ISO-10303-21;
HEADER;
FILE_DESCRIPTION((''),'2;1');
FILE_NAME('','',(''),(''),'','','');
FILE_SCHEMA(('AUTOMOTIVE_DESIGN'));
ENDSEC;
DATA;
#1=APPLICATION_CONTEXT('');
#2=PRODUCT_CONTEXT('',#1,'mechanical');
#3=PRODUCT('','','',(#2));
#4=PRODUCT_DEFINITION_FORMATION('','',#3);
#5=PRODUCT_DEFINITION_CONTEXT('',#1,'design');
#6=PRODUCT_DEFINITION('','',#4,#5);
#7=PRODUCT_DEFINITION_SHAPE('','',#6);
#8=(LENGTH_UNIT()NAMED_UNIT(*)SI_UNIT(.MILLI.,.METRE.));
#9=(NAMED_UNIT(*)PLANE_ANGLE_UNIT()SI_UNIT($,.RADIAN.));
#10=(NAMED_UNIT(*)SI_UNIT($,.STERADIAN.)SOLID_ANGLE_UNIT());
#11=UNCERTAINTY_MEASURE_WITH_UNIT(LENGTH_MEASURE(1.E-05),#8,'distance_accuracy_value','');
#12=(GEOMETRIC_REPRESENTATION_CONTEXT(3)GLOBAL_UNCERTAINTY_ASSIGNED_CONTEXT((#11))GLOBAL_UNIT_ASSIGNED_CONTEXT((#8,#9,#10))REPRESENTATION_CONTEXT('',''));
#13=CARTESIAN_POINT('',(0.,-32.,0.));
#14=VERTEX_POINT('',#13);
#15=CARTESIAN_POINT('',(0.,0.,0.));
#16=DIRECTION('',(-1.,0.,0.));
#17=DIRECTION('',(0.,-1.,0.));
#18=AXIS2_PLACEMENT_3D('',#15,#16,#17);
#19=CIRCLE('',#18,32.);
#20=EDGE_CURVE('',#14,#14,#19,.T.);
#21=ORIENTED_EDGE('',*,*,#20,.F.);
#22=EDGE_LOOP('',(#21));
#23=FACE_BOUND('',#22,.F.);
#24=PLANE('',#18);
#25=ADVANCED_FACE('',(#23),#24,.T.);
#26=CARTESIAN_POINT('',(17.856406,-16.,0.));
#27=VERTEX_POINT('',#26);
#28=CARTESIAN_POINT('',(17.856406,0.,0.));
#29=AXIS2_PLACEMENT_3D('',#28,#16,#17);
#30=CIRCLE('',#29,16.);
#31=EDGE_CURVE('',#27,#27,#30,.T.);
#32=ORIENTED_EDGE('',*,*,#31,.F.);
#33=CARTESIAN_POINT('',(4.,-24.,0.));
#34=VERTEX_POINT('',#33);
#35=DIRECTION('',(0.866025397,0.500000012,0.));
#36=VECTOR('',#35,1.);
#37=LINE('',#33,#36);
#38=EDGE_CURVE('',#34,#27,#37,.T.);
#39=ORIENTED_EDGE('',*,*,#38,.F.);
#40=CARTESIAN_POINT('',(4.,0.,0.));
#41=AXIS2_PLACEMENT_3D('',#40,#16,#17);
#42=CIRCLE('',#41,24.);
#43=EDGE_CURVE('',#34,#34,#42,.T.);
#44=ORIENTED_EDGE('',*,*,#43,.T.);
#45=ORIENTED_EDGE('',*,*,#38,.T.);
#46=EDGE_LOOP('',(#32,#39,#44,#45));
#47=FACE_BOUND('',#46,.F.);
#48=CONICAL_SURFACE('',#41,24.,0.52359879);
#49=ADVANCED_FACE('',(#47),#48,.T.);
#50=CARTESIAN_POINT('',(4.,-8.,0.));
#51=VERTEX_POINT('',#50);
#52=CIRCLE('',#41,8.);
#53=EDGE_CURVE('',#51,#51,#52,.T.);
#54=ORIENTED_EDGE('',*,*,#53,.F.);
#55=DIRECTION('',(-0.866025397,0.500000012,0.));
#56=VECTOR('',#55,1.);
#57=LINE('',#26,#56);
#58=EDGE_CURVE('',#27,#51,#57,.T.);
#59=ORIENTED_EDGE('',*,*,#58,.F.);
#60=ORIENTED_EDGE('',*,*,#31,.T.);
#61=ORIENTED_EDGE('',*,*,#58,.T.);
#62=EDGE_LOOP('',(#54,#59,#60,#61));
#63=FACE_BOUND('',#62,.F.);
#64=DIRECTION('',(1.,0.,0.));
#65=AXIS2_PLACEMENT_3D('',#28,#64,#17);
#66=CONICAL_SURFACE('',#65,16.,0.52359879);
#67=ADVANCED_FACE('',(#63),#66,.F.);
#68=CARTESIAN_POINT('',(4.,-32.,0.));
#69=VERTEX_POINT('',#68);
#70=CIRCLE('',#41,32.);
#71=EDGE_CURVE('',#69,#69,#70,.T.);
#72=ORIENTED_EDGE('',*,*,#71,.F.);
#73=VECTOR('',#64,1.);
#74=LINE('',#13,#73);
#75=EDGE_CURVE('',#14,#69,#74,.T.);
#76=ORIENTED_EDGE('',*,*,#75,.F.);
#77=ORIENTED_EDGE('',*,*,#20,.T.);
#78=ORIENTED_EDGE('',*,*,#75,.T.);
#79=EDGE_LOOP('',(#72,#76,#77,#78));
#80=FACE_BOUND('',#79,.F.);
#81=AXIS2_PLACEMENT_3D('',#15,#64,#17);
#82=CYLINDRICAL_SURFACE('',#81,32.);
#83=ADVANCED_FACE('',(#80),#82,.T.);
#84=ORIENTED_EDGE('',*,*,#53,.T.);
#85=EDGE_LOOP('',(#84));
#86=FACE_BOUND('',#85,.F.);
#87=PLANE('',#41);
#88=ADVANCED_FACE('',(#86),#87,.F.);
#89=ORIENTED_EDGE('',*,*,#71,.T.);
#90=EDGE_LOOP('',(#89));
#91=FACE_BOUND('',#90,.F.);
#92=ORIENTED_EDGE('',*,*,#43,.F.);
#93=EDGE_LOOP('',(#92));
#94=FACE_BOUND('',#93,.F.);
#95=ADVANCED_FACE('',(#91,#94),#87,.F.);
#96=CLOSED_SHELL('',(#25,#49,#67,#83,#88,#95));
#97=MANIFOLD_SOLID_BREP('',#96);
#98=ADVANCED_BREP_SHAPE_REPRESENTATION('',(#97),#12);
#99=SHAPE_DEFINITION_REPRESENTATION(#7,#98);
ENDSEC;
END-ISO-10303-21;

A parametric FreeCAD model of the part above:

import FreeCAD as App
import Part
import Sketcher
Q = App.Units.Quantity


def add_polygon(sketch, points):
    """Adds a closed chain of lines whose ends are joined by coincident constraints."""
    first, n = sketch.GeometryCount, len(points)
    for a, b in zip(points, points[1:] + points[:1]):
        sketch.addGeometry(Part.LineSegment(App.Vector(*a, 0), App.Vector(*b, 0)), False)
    for i in range(n):
        sketch.addConstraint(Sketcher.Constraint("Coincident", first + i, 2, first + (i + 1) % n, 1))

doc = App.newDocument("Part")
body = doc.addObject("PartDesign::Body", "Body")

# Sketch on XY plane
sketch1 = body.newObject("Sketcher::SketchObject", "Sketch")
sketch1.AttachmentSupport = (doc.getObject("XY_Plane"), [""])
sketch1.MapMode = "FlatFace"
add_polygon(sketch1, [(4, 0), (0, 0), (0, -32), (4, -32), (4, -24), (17.9, -16), (4, -8)])  # lines 0-6
sketch1.addConstraint(Sketcher.Constraint("Horizontal", 0))
sketch1.addConstraint(Sketcher.Constraint("Vertical", 1))
sketch1.addConstraint(Sketcher.Constraint("Horizontal", 2))
sketch1.addConstraint(Sketcher.Constraint("Vertical", 3))
sketch1.addConstraint(Sketcher.Constraint("Vertical", 6))
sketch1.addConstraint(Sketcher.Constraint("Coincident", 0, 2, -1, 1))
sketch1.addConstraint(Sketcher.Constraint("Vertical", 3, 2, 5, 2))
sketch1.addConstraint(Sketcher.Constraint("Equal", 3, 6))
sketch1.addConstraint(Sketcher.Constraint("Equal", 4, 5))
sketch1.addConstraint(Sketcher.Constraint("DistanceX", 0, 2, 0, 1, 4.0))
sketch1.addConstraint(Sketcher.Constraint("DistanceY", 1, 2, 1, 1, 32.0))
sketch1.addConstraint(Sketcher.Constraint("DistanceY", 3, 1, 3, 2, 8.0))
sketch1.addConstraint(Sketcher.Constraint("Angle", 4, Q("30.000001 deg")))
revolution = body.newObject("PartDesign::Revolution", "Revolution")
revolution.Profile = sketch1
revolution.ReferenceAxis = (sketch1, ["H_Axis"])
revolution.Angle = 360

doc.recompute()
